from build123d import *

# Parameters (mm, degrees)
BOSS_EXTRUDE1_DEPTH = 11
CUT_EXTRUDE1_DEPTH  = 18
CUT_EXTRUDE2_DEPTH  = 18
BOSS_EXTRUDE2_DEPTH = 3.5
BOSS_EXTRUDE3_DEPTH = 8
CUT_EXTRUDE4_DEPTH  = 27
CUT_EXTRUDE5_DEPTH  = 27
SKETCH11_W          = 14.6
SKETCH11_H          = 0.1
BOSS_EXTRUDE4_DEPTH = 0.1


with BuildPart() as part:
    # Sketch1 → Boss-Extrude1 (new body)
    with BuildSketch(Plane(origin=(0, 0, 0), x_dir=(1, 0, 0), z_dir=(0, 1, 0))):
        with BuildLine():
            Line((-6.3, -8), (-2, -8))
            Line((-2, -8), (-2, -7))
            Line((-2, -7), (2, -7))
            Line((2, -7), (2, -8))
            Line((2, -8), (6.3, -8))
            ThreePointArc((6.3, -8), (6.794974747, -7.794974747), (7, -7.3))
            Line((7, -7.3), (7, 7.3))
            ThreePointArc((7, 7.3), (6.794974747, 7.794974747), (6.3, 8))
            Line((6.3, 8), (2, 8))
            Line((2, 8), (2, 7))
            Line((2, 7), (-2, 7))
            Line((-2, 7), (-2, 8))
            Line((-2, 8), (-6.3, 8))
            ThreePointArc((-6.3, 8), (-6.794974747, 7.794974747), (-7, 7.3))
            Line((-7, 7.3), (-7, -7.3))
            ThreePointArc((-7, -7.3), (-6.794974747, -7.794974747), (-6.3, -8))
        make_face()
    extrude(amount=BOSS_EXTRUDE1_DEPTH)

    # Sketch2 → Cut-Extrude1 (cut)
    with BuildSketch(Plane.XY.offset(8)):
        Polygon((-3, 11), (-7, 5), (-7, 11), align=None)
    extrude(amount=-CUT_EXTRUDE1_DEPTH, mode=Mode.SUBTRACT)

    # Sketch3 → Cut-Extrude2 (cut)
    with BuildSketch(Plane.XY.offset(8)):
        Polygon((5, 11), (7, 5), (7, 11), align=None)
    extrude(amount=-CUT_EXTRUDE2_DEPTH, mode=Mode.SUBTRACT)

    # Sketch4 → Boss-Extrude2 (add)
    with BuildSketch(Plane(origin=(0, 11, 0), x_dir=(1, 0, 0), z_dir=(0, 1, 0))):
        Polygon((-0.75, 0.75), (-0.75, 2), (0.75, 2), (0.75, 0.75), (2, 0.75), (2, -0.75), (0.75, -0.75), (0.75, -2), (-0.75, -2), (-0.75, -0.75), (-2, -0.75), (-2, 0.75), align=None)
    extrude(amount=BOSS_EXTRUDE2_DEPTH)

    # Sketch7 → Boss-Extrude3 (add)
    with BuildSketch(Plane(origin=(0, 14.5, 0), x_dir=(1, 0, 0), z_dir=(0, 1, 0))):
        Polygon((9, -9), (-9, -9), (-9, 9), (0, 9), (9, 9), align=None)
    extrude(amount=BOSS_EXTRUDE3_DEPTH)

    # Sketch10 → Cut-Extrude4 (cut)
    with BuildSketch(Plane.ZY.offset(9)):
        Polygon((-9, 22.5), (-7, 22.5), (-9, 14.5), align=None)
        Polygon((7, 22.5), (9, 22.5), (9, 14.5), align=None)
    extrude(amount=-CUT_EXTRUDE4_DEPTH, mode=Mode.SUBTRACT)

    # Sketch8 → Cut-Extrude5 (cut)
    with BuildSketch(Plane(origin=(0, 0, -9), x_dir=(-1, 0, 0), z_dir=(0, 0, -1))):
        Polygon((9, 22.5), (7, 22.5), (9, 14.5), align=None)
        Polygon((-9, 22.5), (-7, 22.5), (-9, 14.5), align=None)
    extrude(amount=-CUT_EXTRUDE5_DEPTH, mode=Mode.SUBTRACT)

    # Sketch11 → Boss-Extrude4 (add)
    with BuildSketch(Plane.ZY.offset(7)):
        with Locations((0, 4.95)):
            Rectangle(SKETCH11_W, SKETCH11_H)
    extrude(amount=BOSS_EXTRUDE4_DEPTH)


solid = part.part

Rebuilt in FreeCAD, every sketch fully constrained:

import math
import FreeCAD as App
import Part
import Sketcher
from FreeCAD import Vector

doc = App.newDocument("Part")
params = doc.addObject("Spreadsheet::Sheet", "Params")
for row, (alias, value) in enumerate([
    ("sketch1_radius", "0.7 mm"),
    ("sketch1_width", "4 mm"),
    ("sketch1_height", "1 mm"),
    ("sketch1_width2", "4.3 mm"),
    ("sketch1_height2", "14.6 mm"),
    ("pad1_length", "11 mm"),
    ("sketch2_width", "4 mm"),
    ("sketch2_height", "6 mm"),
    ("pocket1_length", "18 mm"),
    ("sketch3_width", "2 mm"),
    ("sketch3_height", "6 mm"),
    ("pocket2_length", "18 mm"),
    ("sketch4_width", "1.5 mm"),
    ("pad2_length", "3.5 mm"),
    ("sketch5_width", "18 mm"),
    ("pad3_length", "8 mm"),
    ("sketch6_width", "8 mm"),
    ("sketch6_height", "2 mm"),
    ("pocket3_length", "27 mm"),
    ("sketch7_width", "2 mm"),
    ("sketch7_height", "8 mm"),
    ("pocket4_length", "27 mm"),
    ("sketch8_width", "0.1 mm"),
    ("sketch8_height", "14.6 mm"),
    ("pad4_length", "0.1 mm"),
], start=1):
    params.set(f"A{row}", alias)
    params.set(f"B{row}", "=" + value)
    params.setAlias(f"B{row}", alias)

body = doc.addObject("PartDesign::Body", "Body")

# Sketch on XZ plane
sketch1 = doc.addObject("Sketcher::SketchObject", "Sketch")
body.addObject(sketch1)
sketch1.AttachmentSupport = (doc.XZ_Plane, [""])
sketch1.MapMode = "FlatFace"
sketch1.addGeometry(Part.LineSegment(Vector(-6.3, 8, 0), Vector(-2, 8, 0)), False)
sketch1.addGeometry(Part.LineSegment(Vector(-2, 8, 0), Vector(-2, 7, 0)), False)
sketch1.addGeometry(Part.LineSegment(Vector(-2, 7, 0), Vector(2, 7, 0)), False)
sketch1.addGeometry(Part.LineSegment(Vector(2, 7, 0), Vector(2, 8, 0)), False)
sketch1.addGeometry(Part.LineSegment(Vector(2, 8, 0), Vector(6.3, 8, 0)), False)
sketch1.addGeometry(Part.ArcOfCircle(Part.Circle(Vector(6.3, 7.3, 0), Vector(0, 0, 1), 0.7), math.radians(0), math.radians(90)), False)
sketch1.addGeometry(Part.LineSegment(Vector(7, 7.3, 0), Vector(7, -7.3, 0)), False)
sketch1.addGeometry(Part.ArcOfCircle(Part.Circle(Vector(6.3, -7.3, 0), Vector(0, 0, 1), 0.7), math.radians(-90), math.radians(0)), False)
sketch1.addGeometry(Part.LineSegment(Vector(6.3, -8, 0), Vector(2, -8, 0)), False)
sketch1.addGeometry(Part.LineSegment(Vector(2, -8, 0), Vector(2, -7, 0)), False)
sketch1.addGeometry(Part.LineSegment(Vector(2, -7, 0), Vector(-2, -7, 0)), False)
sketch1.addGeometry(Part.LineSegment(Vector(-2, -7, 0), Vector(-2, -8, 0)), False)
sketch1.addGeometry(Part.LineSegment(Vector(-2, -8, 0), Vector(-6.3, -8, 0)), False)
sketch1.addGeometry(Part.ArcOfCircle(Part.Circle(Vector(-6.3, -7.3, 0), Vector(0, 0, 1), 0.7), math.radians(180), math.radians(270)), False)
sketch1.addGeometry(Part.LineSegment(Vector(-7, -7.3, 0), Vector(-7, 7.3, 0)), False)
sketch1.addGeometry(Part.ArcOfCircle(Part.Circle(Vector(-6.3, 7.3, 0), Vector(0, 0, 1), 0.7), math.radians(90), math.radians(180)), False)
sketch1.addConstraint(Sketcher.Constraint("Coincident", 0, 2, 1, 1))
sketch1.addConstraint(Sketcher.Constraint("Coincident", 1, 2, 2, 1))
sketch1.addConstraint(Sketcher.Constraint("Coincident", 2, 2, 3, 1))
sketch1.addConstraint(Sketcher.Constraint("Coincident", 3, 2, 4, 1))
sketch1.addConstraint(Sketcher.Constraint("Tangent", 4, 2, 5, 2))
sketch1.addConstraint(Sketcher.Constraint("Tangent", 5, 1, 6, 1))
sketch1.addConstraint(Sketcher.Constraint("Tangent", 6, 2, 7, 2))
sketch1.addConstraint(Sketcher.Constraint("Tangent", 7, 1, 8, 1))
sketch1.addConstraint(Sketcher.Constraint("Coincident", 8, 2, 9, 1))
sketch1.addConstraint(Sketcher.Constraint("Coincident", 9, 2, 10, 1))
sketch1.addConstraint(Sketcher.Constraint("Coincident", 10, 2, 11, 1))
sketch1.addConstraint(Sketcher.Constraint("Coincident", 11, 2, 12, 1))
sketch1.addConstraint(Sketcher.Constraint("Tangent", 12, 2, 13, 2))
sketch1.addConstraint(Sketcher.Constraint("Tangent", 13, 1, 14, 1))
sketch1.addConstraint(Sketcher.Constraint("Tangent", 14, 2, 15, 2))
sketch1.addConstraint(Sketcher.Constraint("Tangent", 15, 1, 0, 1))
sketch1.addConstraint(Sketcher.Constraint("Horizontal", 0))
sketch1.addConstraint(Sketcher.Constraint("Vertical", 1))
sketch1.addConstraint(Sketcher.Constraint("Horizontal", 2))
sketch1.addConstraint(Sketcher.Constraint("Vertical", 3))
sketch1.addConstraint(Sketcher.Constraint("Horizontal", 4))
sketch1.addConstraint(Sketcher.Constraint("Vertical", 6))
sketch1.addConstraint(Sketcher.Constraint("Horizontal", 8))
sketch1.addConstraint(Sketcher.Constraint("Vertical", 9))
sketch1.addConstraint(Sketcher.Constraint("Horizontal", 10))
sketch1.addConstraint(Sketcher.Constraint("Vertical", 11))
sketch1.addConstraint(Sketcher.Constraint("Horizontal", 12))
sketch1.addConstraint(Sketcher.Constraint("Vertical", 14))
sketch1.addConstraint(Sketcher.Constraint("Equal", 5, 7))
sketch1.addConstraint(Sketcher.Constraint("Equal", 7, 13))
sketch1.addConstraint(Sketcher.Constraint("Equal", 13, 15))
sketch1.addConstraint(Sketcher.Constraint("Symmetric", 5, 3, 13, 3, -1, 1))
sketch1.addConstraint(Sketcher.Constraint("Symmetric", 0, 2, 8, 2, -1, 1))
sketch1.addConstraint(Sketcher.Constraint("Symmetric", 2, 2, 10, 2, -1, 1))
sketch1.addConstraint(Sketcher.Constraint("Symmetric", 0, 2, 3, 2, -2))
sketch1.addConstraint(Sketcher.Constraint("Radius", 5, 0.7))
sketch1.addConstraint(Sketcher.Constraint("DistanceX", 2, 1, 2, 2, 4.0))
sketch1.addConstraint(Sketcher.Constraint("DistanceY", 1, 2, 1, 1, 1.0))
sketch1.addConstraint(Sketcher.Constraint("DistanceX", 0, 1, 0, 2, 4.3))
sketch1.addConstraint(Sketcher.Constraint("DistanceY", 6, 2, 6, 1, 14.6))
sketch1.setExpression("Constraints[35]", "Params.sketch1_radius")
sketch1.setExpression("Constraints[36]", "Params.sketch1_width")
sketch1.setExpression("Constraints[37]", "Params.sketch1_height")
sketch1.setExpression("Constraints[38]", "Params.sketch1_width2")
sketch1.setExpression("Constraints[39]", "Params.sketch1_height2")
pad1 = doc.addObject("PartDesign::Pad", "Pad")
body.addObject(pad1)
pad1.Profile = sketch1
pad1.setExpression("Length", "Params.pad1_length")
pad1.Reversed = True

# Sketch on XY plane
sketch2 = doc.addObject("Sketcher::SketchObject", "Sketch001")
body.addObject(sketch2)
sketch2.AttachmentSupport = (doc.XY_Plane, [""])
sketch2.MapMode = "FlatFace"
sketch2.AttachmentOffset = App.Placement(Vector(0, 0, 8), App.Rotation())
sketch2.addGeometry(Part.LineSegment(Vector(-7, 5, 0), Vector(-3, 11, 0)), False)
sketch2.addGeometry(Part.LineSegment(Vector(-3, 11, 0), Vector(-7, 11, 0)), False)
sketch2.addGeometry(Part.LineSegment(Vector(-7, 11, 0), Vector(-7, 5, 0)), False)
sketch2.addConstraint(Sketcher.Constraint("Coincident", 0, 2, 1, 1))
sketch2.addConstraint(Sketcher.Constraint("Coincident", 1, 2, 2, 1))
sketch2.addConstraint(Sketcher.Constraint("Coincident", 2, 2, 0, 1))
sketch2.addConstraint(Sketcher.Constraint("Horizontal", 1))
sketch2.addConstraint(Sketcher.Constraint("Vertical", 2))
sketch2.addConstraint(Sketcher.Constraint("DistanceX", 1, 2, 1, 1, 4.0))
sketch2.addConstraint(Sketcher.Constraint("DistanceY", 2, 2, 2, 1, 6.0))
sketch2.addConstraint(Sketcher.Constraint("DistanceX", 0, 2, -1, 1, 3.0))
sketch2.addConstraint(Sketcher.Constraint("DistanceY", -1, 1, 0, 2, 11.0))
sketch2.setExpression("Constraints[5]", "Params.sketch2_width")
sketch2.setExpression("Constraints[6]", "Params.sketch2_height")
pocket1 = doc.addObject("PartDesign::Pocket", "Pocket")
body.addObject(pocket1)
pocket1.Profile = sketch2
pocket1.setExpression("Length", "Params.pocket1_length")

# Sketch on XY plane
sketch3 = doc.addObject("Sketcher::SketchObject", "Sketch002")
body.addObject(sketch3)
sketch3.AttachmentSupport = (doc.XY_Plane, [""])
sketch3.MapMode = "FlatFace"
sketch3.AttachmentOffset = App.Placement(Vector(0, 0, 8), App.Rotation())
sketch3.addGeometry(Part.LineSegment(Vector(5, 11, 0), Vector(7, 5, 0)), False)
sketch3.addGeometry(Part.LineSegment(Vector(7, 5, 0), Vector(7, 11, 0)), False)
sketch3.addGeometry(Part.LineSegment(Vector(7, 11, 0), Vector(5, 11, 0)), False)
sketch3.addConstraint(Sketcher.Constraint("Coincident", 0, 2, 1, 1))
sketch3.addConstraint(Sketcher.Constraint("Coincident", 1, 2, 2, 1))
sketch3.addConstraint(Sketcher.Constraint("Coincident", 2, 2, 0, 1))
sketch3.addConstraint(Sketcher.Constraint("Vertical", 1))
sketch3.addConstraint(Sketcher.Constraint("Horizontal", 2))
sketch3.addConstraint(Sketcher.Constraint("DistanceX", 2, 2, 2, 1, 2.0))
sketch3.addConstraint(Sketcher.Constraint("DistanceY", 1, 1, 1, 2, 6.0))
sketch3.addConstraint(Sketcher.Constraint("DistanceX", -1, 1, 0, 2, 7.0))
sketch3.addConstraint(Sketcher.Constraint("DistanceY", -1, 1, 0, 2, 5.0))
sketch3.setExpression("Constraints[5]", "Params.sketch3_width")
sketch3.setExpression("Constraints[6]", "Params.sketch3_height")
pocket2 = doc.addObject("PartDesign::Pocket", "Pocket001")
body.addObject(pocket2)
pocket2.Profile = sketch3
pocket2.setExpression("Length", "Params.pocket2_length")

# Sketch on XZ plane
sketch4 = doc.addObject("Sketcher::SketchObject", "Sketch003")
body.addObject(sketch4)
sketch4.AttachmentSupport = (doc.XZ_Plane, [""])
sketch4.MapMode = "FlatFace"
sketch4.AttachmentOffset = App.Placement(Vector(0, 0, -11), App.Rotation())
sketch4.addGeometry(Part.LineSegment(Vector(-0.8, -2, 0), Vector(-0.8, -0.8, 0)), False)
sketch4.addGeometry(Part.LineSegment(Vector(-0.8, -0.8, 0), Vector(-2, -0.8, 0)), False)
sketch4.addGeometry(Part.LineSegment(Vector(-2, -0.8, 0), Vector(-2, 0.8, 0)), False)
sketch4.addGeometry(Part.LineSegment(Vector(-2, 0.8, 0), Vector(-0.8, 0.8, 0)), False)
sketch4.addGeometry(Part.LineSegment(Vector(-0.8, 0.8, 0), Vector(-0.8, 2, 0)), False)
sketch4.addGeometry(Part.LineSegment(Vector(-0.8, 2, 0), Vector(0.8, 2, 0)), False)
sketch4.addGeometry(Part.LineSegment(Vector(0.8, 2, 0), Vector(0.8, 0.8, 0)), False)
sketch4.addGeometry(Part.LineSegment(Vector(0.8, 0.8, 0), Vector(2, 0.8, 0)), False)
sketch4.addGeometry(Part.LineSegment(Vector(2, 0.8, 0), Vector(2, -0.8, 0)), False)
sketch4.addGeometry(Part.LineSegment(Vector(2, -0.8, 0), Vector(0.8, -0.8, 0)), False)
sketch4.addGeometry(Part.LineSegment(Vector(0.8, -0.8, 0), Vector(0.8, -2, 0)), False)
sketch4.addGeometry(Part.LineSegment(Vector(0.8, -2, 0), Vector(-0.8, -2, 0)), False)
sketch4.addConstraint(Sketcher.Constraint("Coincident", 0, 2, 1, 1))
sketch4.addConstraint(Sketcher.Constraint("Coincident", 1, 2, 2, 1))
sketch4.addConstraint(Sketcher.Constraint("Coincident", 2, 2, 3, 1))
sketch4.addConstraint(Sketcher.Constraint("Coincident", 3, 2, 4, 1))
sketch4.addConstraint(Sketcher.Constraint("Coincident", 4, 2, 5, 1))
sketch4.addConstraint(Sketcher.Constraint("Coincident", 5, 2, 6, 1))
sketch4.addConstraint(Sketcher.Constraint("Coincident", 6, 2, 7, 1))
sketch4.addConstraint(Sketcher.Constraint("Coincident", 7, 2, 8, 1))
sketch4.addConstraint(Sketcher.Constraint("Coincident", 8, 2, 9, 1))
sketch4.addConstraint(Sketcher.Constraint("Coincident", 9, 2, 10, 1))
sketch4.addConstraint(Sketcher.Constraint("Coincident", 10, 2, 11, 1))
sketch4.addConstraint(Sketcher.Constraint("Coincident", 11, 2, 0, 1))
sketch4.addConstraint(Sketcher.Constraint("Vertical", 0))
sketch4.addConstraint(Sketcher.Constraint("Horizontal", 1))
sketch4.addConstraint(Sketcher.Constraint("Vertical", 2))
sketch4.addConstraint(Sketcher.Constraint("Horizontal", 3))
sketch4.addConstraint(Sketcher.Constraint("Vertical", 4))
sketch4.addConstraint(Sketcher.Constraint("Horizontal", 5))
sketch4.addConstraint(Sketcher.Constraint("Vertical", 6))
sketch4.addConstraint(Sketcher.Constraint("Horizontal", 7))
sketch4.addConstraint(Sketcher.Constraint("Vertical", 8))
sketch4.addConstraint(Sketcher.Constraint("Horizontal", 9))
sketch4.addConstraint(Sketcher.Constraint("Vertical", 10))
sketch4.addConstraint(Sketcher.Constraint("Horizontal", 11))
sketch4.addConstraint(Sketcher.Constraint("Symmetric", 0, 2, 6, 2, -1, 1))
sketch4.addConstraint(Sketcher.Constraint("Symmetric", 2, 2, 8, 2, -1, 1))
sketch4.addConstraint(Sketcher.Constraint("Symmetric", 4, 2, 10, 2, -1, 1))
sketch4.addConstraint(Sketcher.Constraint("Symmetric", 3, 2, 6, 2, -2))
sketch4.addConstraint(Sketcher.Constraint("Equal", 9, 0))
sketch4.addConstraint(Sketcher.Constraint("Equal", 11, 2))
sketch4.addConstraint(Sketcher.Constraint("DistanceX", 5, 1, 5, 2, 1.5))
sketch4.addConstraint(Sketcher.Constraint("DistanceX", 1, 2, -1, 1, 2.0))
sketch4.setExpression("Constraints[30]", "Params.sketch4_width")
pad2 = doc.addObject("PartDesign::Pad", "Pad001")
body.addObject(pad2)
pad2.Profile = sketch4
pad2.setExpression("Length", "Params.pad2_length")
pad2.Reversed = True

# Sketch on XZ plane
sketch5 = doc.addObject("Sketcher::SketchObject", "Sketch004")
body.addObject(sketch5)
sketch5.AttachmentSupport = (doc.XZ_Plane, [""])
sketch5.MapMode = "FlatFace"
sketch5.AttachmentOffset = App.Placement(Vector(0, 0, -14.5), App.Rotation())
sketch5.addGeometry(Part.LineSegment(Vector(-9, 9, 0), Vector(9, 9, 0)), False)
sketch5.addGeometry(Part.LineSegment(Vector(9, 9, 0), Vector(9, -9, 0)), False)
sketch5.addGeometry(Part.LineSegment(Vector(9, -9, 0), Vector(-9, -9, 0)), False)
sketch5.addGeometry(Part.LineSegment(Vector(-9, -9, 0), Vector(-9, 9, 0)), False)
sketch5.addConstraint(Sketcher.Constraint("Coincident", 0, 2, 1, 1))
sketch5.addConstraint(Sketcher.Constraint("Coincident", 1, 2, 2, 1))
sketch5.addConstraint(Sketcher.Constraint("Coincident", 2, 2, 3, 1))
sketch5.addConstraint(Sketcher.Constraint("Coincident", 3, 2, 0, 1))
sketch5.addConstraint(Sketcher.Constraint("Horizontal", 0))
sketch5.addConstraint(Sketcher.Constraint("Vertical", 1))
sketch5.addConstraint(Sketcher.Constraint("Horizontal", 2))
sketch5.addConstraint(Sketcher.Constraint("Vertical", 3))
sketch5.addConstraint(Sketcher.Constraint("Symmetric", 0, 2, 2, 2, -1, 1))
sketch5.addConstraint(Sketcher.Constraint("Equal", 2, 1))
sketch5.addConstraint(Sketcher.Constraint("DistanceX", 0, 1, 0, 2, 18.0))
sketch5.setExpression("Constraints[10]", "Params.sketch5_width")
pad3 = doc.addObject("PartDesign::Pad", "Pad002")
body.addObject(pad3)
pad3.Profile = sketch5
pad3.setExpression("Length", "Params.pad3_length")
pad3.Reversed = True

# Sketch on YZ plane
sketch6 = doc.addObject("Sketcher::SketchObject", "Sketch005")
body.addObject(sketch6)
sketch6.AttachmentSupport = (doc.YZ_Plane, [""])
sketch6.MapMode = "FlatFace"
sketch6.AttachmentOffset = App.Placement(Vector(0, 0, -9), App.Rotation())
sketch6.addGeometry(Part.LineSegment(Vector(22.5, -7, 0), Vector(22.5, -9, 0)), False)
sketch6.addGeometry(Part.LineSegment(Vector(22.5, -9, 0), Vector(14.5, -9, 0)), False)
sketch6.addGeometry(Part.LineSegment(Vector(14.5, -9, 0), Vector(22.5, -7, 0)), False)
sketch6.addGeometry(Part.LineSegment(Vector(22.5, 9, 0), Vector(22.5, 7, 0)), False)
sketch6.addGeometry(Part.LineSegment(Vector(22.5, 7, 0), Vector(14.5, 9, 0)), False)
sketch6.addGeometry(Part.LineSegment(Vector(14.5, 9, 0), Vector(22.5, 9, 0)), False)
sketch6.addConstraint(Sketcher.Constraint("Coincident", 0, 2, 1, 1))
sketch6.addConstraint(Sketcher.Constraint("Coincident", 1, 2, 2, 1))
sketch6.addConstraint(Sketcher.Constraint("Coincident", 2, 2, 0, 1))
sketch6.addConstraint(Sketcher.Constraint("Coincident", 3, 2, 4, 1))
sketch6.addConstraint(Sketcher.Constraint("Coincident", 4, 2, 5, 1))
sketch6.addConstraint(Sketcher.Constraint("Coincident", 5, 2, 3, 1))
sketch6.addConstraint(Sketcher.Constraint("Vertical", 0))
sketch6.addConstraint(Sketcher.Constraint("Horizontal", 1))
sketch6.addConstraint(Sketcher.Constraint("Vertical", 3))
sketch6.addConstraint(Sketcher.Constraint("Horizontal", 5))
sketch6.addConstraint(Sketcher.Constraint("Symmetric", 2, 2, 3, 2, -1))
sketch6.addConstraint(Sketcher.Constraint("Symmetric", 1, 2, 4, 2, -1))
sketch6.addConstraint(Sketcher.Constraint("DistanceX", 1, 2, 1, 1, 8.0))
sketch6.addConstraint(Sketcher.Constraint("DistanceY", 0, 2, 0, 1, 2.0))
sketch6.addConstraint(Sketcher.Constraint("DistanceY", 0, 2, -1, 1, 9.0))
sketch6.addConstraint(Sketcher.Constraint("DistanceX", -1, 1, 0, 2, 22.5))
sketch6.setExpression("Constraints[12]", "Params.sketch6_width")
sketch6.setExpression("Constraints[13]", "Params.sketch6_height")
pocket3 = doc.addObject("PartDesign::Pocket", "Pocket002")
body.addObject(pocket3)
pocket3.Profile = sketch6
pocket3.setExpression("Length", "Params.pocket3_length")
pocket3.Reversed = True

# Sketch on XY plane
sketch7 = doc.addObject("Sketcher::SketchObject", "Sketch006")
body.addObject(sketch7)
sketch7.AttachmentSupport = (doc.XY_Plane, [""])
sketch7.MapMode = "FlatFace"
sketch7.AttachmentOffset = App.Placement(Vector(0, 0, -9), App.Rotation())
sketch7.addGeometry(Part.LineSegment(Vector(-9, 22.5, 0), Vector(-7, 22.5, 0)), False)
sketch7.addGeometry(Part.LineSegment(Vector(-7, 22.5, 0), Vector(-9, 14.5, 0)), False)
sketch7.addGeometry(Part.LineSegment(Vector(-9, 14.5, 0), Vector(-9, 22.5, 0)), False)
sketch7.addGeometry(Part.LineSegment(Vector(7, 22.5, 0), Vector(9, 22.5, 0)), False)
sketch7.addGeometry(Part.LineSegment(Vector(9, 22.5, 0), Vector(9, 14.5, 0)), False)
sketch7.addGeometry(Part.LineSegment(Vector(9, 14.5, 0), Vector(7, 22.5, 0)), False)
sketch7.addConstraint(Sketcher.Constraint("Coincident", 0, 2, 1, 1))
sketch7.addConstraint(Sketcher.Constraint("Coincident", 1, 2, 2, 1))
sketch7.addConstraint(Sketcher.Constraint("Coincident", 2, 2, 0, 1))
sketch7.addConstraint(Sketcher.Constraint("Coincident", 3, 2, 4, 1))
sketch7.addConstraint(Sketcher.Constraint("Coincident", 4, 2, 5, 1))
sketch7.addConstraint(Sketcher.Constraint("Coincident", 5, 2, 3, 1))
sketch7.addConstraint(Sketcher.Constraint("Horizontal", 0))
sketch7.addConstraint(Sketcher.Constraint("Vertical", 2))
sketch7.addConstraint(Sketcher.Constraint("Horizontal", 3))
sketch7.addConstraint(Sketcher.Constraint("Vertical", 4))
sketch7.addConstraint(Sketcher.Constraint("Symmetric", 2, 2, 3, 2, -2))
sketch7.addConstraint(Sketcher.Constraint("Horizontal", 1, 2, 4, 2))
sketch7.addConstraint(Sketcher.Constraint("Equal", 0, 3))
sketch7.addConstraint(Sketcher.Constraint("DistanceX", 0, 1, 0, 2, 2.0))
sketch7.addConstraint(Sketcher.Constraint("DistanceY", 2, 1, 2, 2, 8.0))
sketch7.addConstraint(Sketcher.Constraint("DistanceX", 0, 2, -1, 1, 7.0))
sketch7.addConstraint(Sketcher.Constraint("DistanceY", -1, 1, 0, 2, 22.5))
sketch7.setExpression("Constraints[13]", "Params.sketch7_width")
sketch7.setExpression("Constraints[14]", "Params.sketch7_height")
pocket4 = doc.addObject("PartDesign::Pocket", "Pocket003")
body.addObject(pocket4)
pocket4.Profile = sketch7
pocket4.setExpression("Length", "Params.pocket4_length")
pocket4.Reversed = True

# Sketch on YZ plane
sketch8 = doc.addObject("Sketcher::SketchObject", "Sketch007")
body.addObject(sketch8)
sketch8.AttachmentSupport = (doc.YZ_Plane, [""])
sketch8.MapMode = "FlatFace"
sketch8.AttachmentOffset = App.Placement(Vector(0, 0, -7), App.Rotation())
sketch8.addGeometry(Part.LineSegment(Vector(5, -7.3, 0), Vector(4.9, -7.3, 0)), False)
sketch8.addGeometry(Part.LineSegment(Vector(4.9, -7.3, 0), Vector(4.9, 7.3, 0)), False)
sketch8.addGeometry(Part.LineSegment(Vector(4.9, 7.3, 0), Vector(5, 7.3, 0)), False)
sketch8.addGeometry(Part.LineSegment(Vector(5, 7.3, 0), Vector(5, -7.3, 0)), False)
sketch8.addConstraint(Sketcher.Constraint("Coincident", 0, 2, 1, 1))
sketch8.addConstraint(Sketcher.Constraint("Coincident", 1, 2, 2, 1))
sketch8.addConstraint(Sketcher.Constraint("Coincident", 2, 2, 3, 1))
sketch8.addConstraint(Sketcher.Constraint("Coincident", 3, 2, 0, 1))
sketch8.addConstraint(Sketcher.Constraint("Horizontal", 0))
sketch8.addConstraint(Sketcher.Constraint("Vertical", 1))
sketch8.addConstraint(Sketcher.Constraint("Horizontal", 2))
sketch8.addConstraint(Sketcher.Constraint("Vertical", 3))
sketch8.addConstraint(Sketcher.Constraint("DistanceX", 0, 2, 0, 1, 0.1))
sketch8.addConstraint(Sketcher.Constraint("DistanceY", 1, 1, 1, 2, 14.6))
sketch8.addConstraint(Sketcher.Constraint("DistanceX", -1, 1, 2, 2, 5.0))
sketch8.addConstraint(Sketcher.Constraint("DistanceY", 0, 2, -1, 1, 7.3))
sketch8.setExpression("Constraints[8]", "Params.sketch8_width")
sketch8.setExpression("Constraints[9]", "Params.sketch8_height")
pad4 = doc.addObject("PartDesign::Pad", "Pad003")
body.addObject(pad4)
pad4.Profile = sketch8
pad4.setExpression("Length", "Params.pad4_length")
pad4.Reversed = True

doc.recompute()
